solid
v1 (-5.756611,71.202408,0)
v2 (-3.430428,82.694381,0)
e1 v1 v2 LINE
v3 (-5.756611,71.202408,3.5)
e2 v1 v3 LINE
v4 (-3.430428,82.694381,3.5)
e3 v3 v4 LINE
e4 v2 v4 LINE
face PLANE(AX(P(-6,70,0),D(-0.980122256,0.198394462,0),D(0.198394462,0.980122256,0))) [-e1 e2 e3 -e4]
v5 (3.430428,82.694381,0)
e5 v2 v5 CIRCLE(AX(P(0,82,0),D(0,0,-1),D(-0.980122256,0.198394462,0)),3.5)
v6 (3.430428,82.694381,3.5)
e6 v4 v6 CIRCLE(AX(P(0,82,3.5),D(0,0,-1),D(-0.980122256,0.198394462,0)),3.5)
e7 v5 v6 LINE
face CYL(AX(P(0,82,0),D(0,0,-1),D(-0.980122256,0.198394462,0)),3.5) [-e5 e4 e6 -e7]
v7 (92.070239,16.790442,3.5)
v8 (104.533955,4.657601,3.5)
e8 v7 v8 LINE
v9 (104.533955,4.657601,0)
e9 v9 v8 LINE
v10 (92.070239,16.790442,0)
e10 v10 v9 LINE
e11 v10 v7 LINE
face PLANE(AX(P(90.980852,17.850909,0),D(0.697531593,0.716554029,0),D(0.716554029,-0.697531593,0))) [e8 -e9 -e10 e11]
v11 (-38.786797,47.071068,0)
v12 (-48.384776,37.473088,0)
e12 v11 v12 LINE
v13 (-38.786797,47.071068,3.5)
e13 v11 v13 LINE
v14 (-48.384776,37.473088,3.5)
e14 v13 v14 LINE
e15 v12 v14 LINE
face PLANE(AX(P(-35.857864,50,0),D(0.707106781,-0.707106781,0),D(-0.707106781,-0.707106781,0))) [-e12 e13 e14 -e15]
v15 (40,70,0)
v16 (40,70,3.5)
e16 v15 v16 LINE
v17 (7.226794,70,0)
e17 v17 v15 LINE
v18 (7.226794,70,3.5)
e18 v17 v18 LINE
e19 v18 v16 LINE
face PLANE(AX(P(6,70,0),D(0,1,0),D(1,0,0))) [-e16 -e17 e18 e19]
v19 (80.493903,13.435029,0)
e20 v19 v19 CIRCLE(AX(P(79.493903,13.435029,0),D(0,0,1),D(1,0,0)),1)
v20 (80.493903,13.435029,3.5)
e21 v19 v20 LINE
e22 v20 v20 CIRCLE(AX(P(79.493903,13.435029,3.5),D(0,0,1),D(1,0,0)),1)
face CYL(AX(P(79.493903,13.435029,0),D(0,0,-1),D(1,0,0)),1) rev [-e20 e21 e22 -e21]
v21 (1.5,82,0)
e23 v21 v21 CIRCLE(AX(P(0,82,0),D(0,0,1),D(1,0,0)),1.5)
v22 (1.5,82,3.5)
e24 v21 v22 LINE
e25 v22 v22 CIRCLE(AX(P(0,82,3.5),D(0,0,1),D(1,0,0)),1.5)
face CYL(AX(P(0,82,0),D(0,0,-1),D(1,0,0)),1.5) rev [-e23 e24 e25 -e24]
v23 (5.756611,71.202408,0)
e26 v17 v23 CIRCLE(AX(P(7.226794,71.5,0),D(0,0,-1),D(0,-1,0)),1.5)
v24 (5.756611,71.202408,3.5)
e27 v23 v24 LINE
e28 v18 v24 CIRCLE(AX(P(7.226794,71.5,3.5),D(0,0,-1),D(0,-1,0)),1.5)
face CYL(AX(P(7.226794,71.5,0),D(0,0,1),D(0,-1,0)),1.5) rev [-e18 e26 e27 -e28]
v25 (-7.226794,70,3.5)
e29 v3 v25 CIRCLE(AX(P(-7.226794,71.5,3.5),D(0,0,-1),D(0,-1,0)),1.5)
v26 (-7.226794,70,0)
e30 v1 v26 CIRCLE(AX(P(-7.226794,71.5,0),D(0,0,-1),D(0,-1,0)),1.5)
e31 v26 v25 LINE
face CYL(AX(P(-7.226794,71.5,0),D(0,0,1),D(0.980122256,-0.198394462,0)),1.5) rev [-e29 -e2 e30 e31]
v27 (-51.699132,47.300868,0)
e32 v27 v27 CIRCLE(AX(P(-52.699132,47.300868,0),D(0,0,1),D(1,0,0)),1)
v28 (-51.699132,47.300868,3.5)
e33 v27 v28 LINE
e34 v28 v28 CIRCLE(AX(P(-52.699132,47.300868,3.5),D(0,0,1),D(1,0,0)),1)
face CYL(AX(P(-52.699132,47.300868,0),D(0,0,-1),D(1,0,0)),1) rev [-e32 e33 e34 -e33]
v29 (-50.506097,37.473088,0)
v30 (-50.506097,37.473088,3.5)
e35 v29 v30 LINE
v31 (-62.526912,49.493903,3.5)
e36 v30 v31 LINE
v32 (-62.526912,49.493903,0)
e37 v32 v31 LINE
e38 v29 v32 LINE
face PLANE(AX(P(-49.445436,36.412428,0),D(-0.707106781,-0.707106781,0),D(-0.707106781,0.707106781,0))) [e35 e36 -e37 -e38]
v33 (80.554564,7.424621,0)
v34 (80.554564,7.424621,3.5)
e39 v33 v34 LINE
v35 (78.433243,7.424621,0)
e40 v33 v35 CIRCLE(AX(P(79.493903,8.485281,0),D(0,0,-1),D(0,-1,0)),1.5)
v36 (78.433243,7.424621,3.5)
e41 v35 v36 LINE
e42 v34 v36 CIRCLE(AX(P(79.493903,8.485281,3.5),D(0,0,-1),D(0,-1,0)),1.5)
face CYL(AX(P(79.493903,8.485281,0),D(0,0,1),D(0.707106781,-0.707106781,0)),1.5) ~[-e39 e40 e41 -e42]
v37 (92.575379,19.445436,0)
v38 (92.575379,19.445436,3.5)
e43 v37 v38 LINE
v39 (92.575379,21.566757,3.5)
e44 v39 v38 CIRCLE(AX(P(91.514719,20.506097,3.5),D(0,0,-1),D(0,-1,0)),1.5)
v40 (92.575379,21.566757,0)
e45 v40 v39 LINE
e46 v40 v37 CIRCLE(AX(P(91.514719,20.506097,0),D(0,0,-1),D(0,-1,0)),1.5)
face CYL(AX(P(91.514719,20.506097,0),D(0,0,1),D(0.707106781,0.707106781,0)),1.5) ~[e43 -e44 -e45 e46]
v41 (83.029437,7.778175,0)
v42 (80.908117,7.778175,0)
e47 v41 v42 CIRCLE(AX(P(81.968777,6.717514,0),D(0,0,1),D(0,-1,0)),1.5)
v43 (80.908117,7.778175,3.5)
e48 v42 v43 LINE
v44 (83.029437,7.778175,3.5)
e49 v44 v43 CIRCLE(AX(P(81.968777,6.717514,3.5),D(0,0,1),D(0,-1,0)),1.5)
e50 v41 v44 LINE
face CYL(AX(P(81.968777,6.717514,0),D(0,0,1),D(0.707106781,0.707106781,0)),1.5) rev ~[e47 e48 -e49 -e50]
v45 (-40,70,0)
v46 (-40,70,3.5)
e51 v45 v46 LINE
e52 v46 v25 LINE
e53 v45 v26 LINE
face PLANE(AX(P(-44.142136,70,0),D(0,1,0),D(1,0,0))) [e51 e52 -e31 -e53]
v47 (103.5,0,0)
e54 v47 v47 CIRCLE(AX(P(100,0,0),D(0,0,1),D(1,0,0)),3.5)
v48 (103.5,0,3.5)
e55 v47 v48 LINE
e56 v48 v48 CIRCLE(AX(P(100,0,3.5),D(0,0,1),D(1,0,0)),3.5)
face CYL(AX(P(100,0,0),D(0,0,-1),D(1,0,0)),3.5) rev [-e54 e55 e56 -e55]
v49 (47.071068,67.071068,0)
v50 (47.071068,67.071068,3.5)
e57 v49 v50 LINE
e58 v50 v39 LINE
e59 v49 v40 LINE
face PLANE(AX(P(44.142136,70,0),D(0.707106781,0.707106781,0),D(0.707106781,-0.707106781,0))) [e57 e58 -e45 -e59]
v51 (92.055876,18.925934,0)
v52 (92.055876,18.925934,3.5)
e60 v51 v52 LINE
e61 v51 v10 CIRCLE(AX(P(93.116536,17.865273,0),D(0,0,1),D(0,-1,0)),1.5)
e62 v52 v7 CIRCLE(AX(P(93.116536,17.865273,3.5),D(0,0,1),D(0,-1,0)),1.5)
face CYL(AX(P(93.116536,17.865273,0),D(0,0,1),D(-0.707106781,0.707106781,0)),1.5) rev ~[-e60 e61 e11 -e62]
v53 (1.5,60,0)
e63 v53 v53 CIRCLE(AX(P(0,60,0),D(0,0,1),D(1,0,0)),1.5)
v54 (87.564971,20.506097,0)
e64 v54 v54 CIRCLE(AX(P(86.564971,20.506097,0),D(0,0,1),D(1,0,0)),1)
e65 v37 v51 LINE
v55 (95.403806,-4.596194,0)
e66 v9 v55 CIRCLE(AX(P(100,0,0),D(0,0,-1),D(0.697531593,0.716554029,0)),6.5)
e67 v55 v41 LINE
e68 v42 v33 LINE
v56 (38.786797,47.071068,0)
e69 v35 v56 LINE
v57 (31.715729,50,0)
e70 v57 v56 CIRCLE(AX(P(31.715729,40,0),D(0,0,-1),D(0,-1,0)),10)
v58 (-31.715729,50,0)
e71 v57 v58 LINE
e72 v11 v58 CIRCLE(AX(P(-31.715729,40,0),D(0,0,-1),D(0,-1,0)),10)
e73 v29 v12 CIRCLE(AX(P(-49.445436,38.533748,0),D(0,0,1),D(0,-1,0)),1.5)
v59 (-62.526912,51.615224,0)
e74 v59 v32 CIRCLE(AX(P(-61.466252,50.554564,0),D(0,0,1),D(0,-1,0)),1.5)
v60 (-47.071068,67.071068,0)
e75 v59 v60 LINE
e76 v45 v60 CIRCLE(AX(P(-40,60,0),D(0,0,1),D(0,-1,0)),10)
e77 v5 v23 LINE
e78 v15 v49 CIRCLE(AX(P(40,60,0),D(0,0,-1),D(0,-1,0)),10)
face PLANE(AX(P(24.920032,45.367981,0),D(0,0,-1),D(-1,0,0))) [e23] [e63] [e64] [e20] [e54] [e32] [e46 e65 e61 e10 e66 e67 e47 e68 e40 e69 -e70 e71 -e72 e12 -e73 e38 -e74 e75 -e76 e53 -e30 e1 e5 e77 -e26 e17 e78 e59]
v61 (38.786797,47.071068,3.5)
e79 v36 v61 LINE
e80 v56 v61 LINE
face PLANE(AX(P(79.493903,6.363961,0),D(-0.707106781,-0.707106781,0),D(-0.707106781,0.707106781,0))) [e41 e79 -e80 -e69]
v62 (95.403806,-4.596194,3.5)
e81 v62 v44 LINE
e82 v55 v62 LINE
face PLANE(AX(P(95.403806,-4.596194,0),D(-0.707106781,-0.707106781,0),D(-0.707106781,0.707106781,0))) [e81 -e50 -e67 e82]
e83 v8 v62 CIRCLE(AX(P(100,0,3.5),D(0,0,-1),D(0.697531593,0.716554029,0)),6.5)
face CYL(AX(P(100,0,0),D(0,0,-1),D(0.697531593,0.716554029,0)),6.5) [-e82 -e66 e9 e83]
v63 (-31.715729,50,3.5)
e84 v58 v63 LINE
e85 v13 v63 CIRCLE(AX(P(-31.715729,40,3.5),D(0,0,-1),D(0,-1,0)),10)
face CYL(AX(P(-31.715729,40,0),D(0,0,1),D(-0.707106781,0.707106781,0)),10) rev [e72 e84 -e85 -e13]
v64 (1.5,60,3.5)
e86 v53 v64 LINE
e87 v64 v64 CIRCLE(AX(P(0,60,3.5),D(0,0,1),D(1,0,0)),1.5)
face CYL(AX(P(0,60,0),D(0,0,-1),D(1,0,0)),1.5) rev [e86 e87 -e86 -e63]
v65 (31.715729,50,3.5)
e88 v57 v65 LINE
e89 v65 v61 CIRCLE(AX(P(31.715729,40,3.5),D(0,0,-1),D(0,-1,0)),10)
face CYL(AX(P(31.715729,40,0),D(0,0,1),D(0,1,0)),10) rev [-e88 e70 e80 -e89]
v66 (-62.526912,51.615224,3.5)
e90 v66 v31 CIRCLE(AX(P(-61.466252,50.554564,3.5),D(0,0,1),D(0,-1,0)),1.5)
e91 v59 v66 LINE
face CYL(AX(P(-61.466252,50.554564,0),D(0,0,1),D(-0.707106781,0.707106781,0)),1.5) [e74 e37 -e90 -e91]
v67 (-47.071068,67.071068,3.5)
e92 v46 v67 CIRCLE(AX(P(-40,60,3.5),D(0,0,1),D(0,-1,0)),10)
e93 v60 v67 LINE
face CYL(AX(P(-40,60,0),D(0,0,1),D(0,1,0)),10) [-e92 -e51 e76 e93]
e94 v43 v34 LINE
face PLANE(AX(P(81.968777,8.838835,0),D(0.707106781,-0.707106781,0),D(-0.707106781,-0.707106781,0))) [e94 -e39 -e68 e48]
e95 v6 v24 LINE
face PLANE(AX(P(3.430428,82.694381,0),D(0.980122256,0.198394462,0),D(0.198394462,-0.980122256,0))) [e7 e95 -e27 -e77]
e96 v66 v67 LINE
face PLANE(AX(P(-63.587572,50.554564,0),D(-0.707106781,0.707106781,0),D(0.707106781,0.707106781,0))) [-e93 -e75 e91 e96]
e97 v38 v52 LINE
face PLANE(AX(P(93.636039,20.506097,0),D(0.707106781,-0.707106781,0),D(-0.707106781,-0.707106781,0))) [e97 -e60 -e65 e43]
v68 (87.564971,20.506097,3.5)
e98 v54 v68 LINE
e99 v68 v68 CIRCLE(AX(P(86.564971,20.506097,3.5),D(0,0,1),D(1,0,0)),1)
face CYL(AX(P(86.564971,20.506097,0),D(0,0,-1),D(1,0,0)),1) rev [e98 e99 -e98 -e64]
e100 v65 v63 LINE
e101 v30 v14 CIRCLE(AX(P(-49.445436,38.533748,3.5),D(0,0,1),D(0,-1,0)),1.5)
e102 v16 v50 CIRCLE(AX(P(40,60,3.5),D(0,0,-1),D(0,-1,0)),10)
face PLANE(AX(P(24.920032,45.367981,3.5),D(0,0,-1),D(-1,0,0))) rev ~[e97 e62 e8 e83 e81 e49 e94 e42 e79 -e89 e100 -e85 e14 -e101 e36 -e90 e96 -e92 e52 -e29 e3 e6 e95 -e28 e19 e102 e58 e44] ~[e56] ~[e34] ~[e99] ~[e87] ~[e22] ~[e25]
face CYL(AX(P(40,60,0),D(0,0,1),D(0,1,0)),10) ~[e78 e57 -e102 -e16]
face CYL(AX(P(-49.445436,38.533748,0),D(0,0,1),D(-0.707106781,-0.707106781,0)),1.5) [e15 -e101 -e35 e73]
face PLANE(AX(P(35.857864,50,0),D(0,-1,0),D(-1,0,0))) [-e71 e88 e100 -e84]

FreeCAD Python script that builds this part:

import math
import FreeCAD as App
import Part
import Sketcher
from FreeCAD import Vector
Q = App.Units.Quantity


def edges_at(feature, points):
    """Names of the edges that pass closest to the given points."""
    edges = feature.Shape.Edges
    near = lambda p: min(range(len(edges)), key=lambda i: edges[i].distToShape(Part.Vertex(*p))[0])
    return sorted({f"Edge{near(p) + 1}" for p in points})

doc = App.newDocument("Part")
body = doc.addObject("PartDesign::Body", "Body")

# Sketch on XY plane
sketch1 = doc.addObject("Sketcher::SketchObject", "Sketch")
body.addObject(sketch1)
sketch1.AttachmentSupport = (doc.XY_Plane, [""])
sketch1.MapMode = "FlatFace"
sketch1.addGeometry(Part.LineSegment(Vector(6, 70, 0), Vector(3.4, 82.7, 0)), False)
sketch1.addGeometry(Part.ArcOfCircle(Part.Circle(Vector(0, 82, 0), Vector(0, 0, 1), 3.5), math.radians(11), math.radians(169)), False)
sketch1.addGeometry(Part.LineSegment(Vector(-3.4, 82.7, 0), Vector(-6, 70, 0)), False)
sketch1.addGeometry(Part.LineSegment(Vector(-6, 70, 0), Vector(-44.1, 70, 0)), False)
sketch1.addGeometry(Part.LineSegment(Vector(-44.1, 70, 0), Vector(-63.6, 50.6, 0)), False)
sketch1.addGeometry(Part.LineSegment(Vector(-63.6, 50.6, 0), Vector(-49.4, 36.4, 0)), False)
sketch1.addGeometry(Part.LineSegment(Vector(-49.4, 36.4, 0), Vector(-35.9, 50, 0)), False)
sketch1.addGeometry(Part.LineSegment(Vector(-35.9, 50, 0), Vector(35.9, 50, 0)), False)
sketch1.addGeometry(Part.LineSegment(Vector(35.9, 50, 0), Vector(79.5, 6.4, 0)), False)
sketch1.addGeometry(Part.LineSegment(Vector(79.5, 6.4, 0), Vector(82, 8.8, 0)), False)
sketch1.addGeometry(Part.LineSegment(Vector(82, 8.8, 0), Vector(95.4, -4.6, 0)), False)
sketch1.addGeometry(Part.ArcOfCircle(Part.Circle(Vector(100, 0, 0), Vector(0, 0, 1), 6.5), math.radians(-135), math.radians(46)), False)
sketch1.addGeometry(Part.LineSegment(Vector(104.5, 4.7, 0), Vector(91, 17.9, 0)), False)
sketch1.addGeometry(Part.LineSegment(Vector(91, 17.9, 0), Vector(93.6, 20.5, 0)), False)
sketch1.addGeometry(Part.LineSegment(Vector(93.6, 20.5, 0), Vector(44.1, 70, 0)), False)
sketch1.addGeometry(Part.LineSegment(Vector(44.1, 70, 0), Vector(6, 70, 0)), False)
sketch1.addGeometry(Part.Circle(Vector(100, 0, 0), Vector(0, 0, 1), 3.5), False)
sketch1.addGeometry(Part.Circle(Vector(79.5, 13.4, 0), Vector(0, 0, 1), 1), False)
sketch1.addGeometry(Part.Circle(Vector(86.6, 20.5, 0), Vector(0, 0, 1), 1), False)
sketch1.addGeometry(Part.Circle(Vector(0, 60, 0), Vector(0, 0, 1), 1.5), False)
sketch1.addGeometry(Part.Circle(Vector(-52.7, 47.3, 0), Vector(0, 0, 1), 1), False)
sketch1.addGeometry(Part.Circle(Vector(0, 82, 0), Vector(0, 0, 1), 1.5), False)
sketch1.addConstraint(Sketcher.Constraint("Tangent", 0, 2, 1, 1))
sketch1.addConstraint(Sketcher.Constraint("Tangent", 1, 2, 2, 1))
sketch1.addConstraint(Sketcher.Constraint("Coincident", 2, 2, 3, 1))
sketch1.addConstraint(Sketcher.Constraint("Coincident", 3, 2, 4, 1))
sketch1.addConstraint(Sketcher.Constraint("Coincident", 4, 2, 5, 1))
sketch1.addConstraint(Sketcher.Constraint("Coincident", 5, 2, 6, 1))
sketch1.addConstraint(Sketcher.Constraint("Coincident", 6, 2, 7, 1))
sketch1.addConstraint(Sketcher.Constraint("Coincident", 7, 2, 8, 1))
sketch1.addConstraint(Sketcher.Constraint("Coincident", 8, 2, 9, 1))
sketch1.addConstraint(Sketcher.Constraint("Coincident", 9, 2, 10, 1))
sketch1.addConstraint(Sketcher.Constraint("Tangent", 10, 2, 11, 1))
sketch1.addConstraint(Sketcher.Constraint("Tangent", 11, 2, 12, 1))
sketch1.addConstraint(Sketcher.Constraint("Coincident", 12, 2, 13, 1))
sketch1.addConstraint(Sketcher.Constraint("Coincident", 13, 2, 14, 1))
sketch1.addConstraint(Sketcher.Constraint("Coincident", 14, 2, 15, 1))
sketch1.addConstraint(Sketcher.Constraint("Coincident", 15, 2, 0, 1))
sketch1.addConstraint(Sketcher.Constraint("Horizontal", 3))
sketch1.addConstraint(Sketcher.Constraint("Horizontal", 7))
sketch1.addConstraint(Sketcher.Constraint("Horizontal", 15))
sketch1.addConstraint(Sketcher.Constraint("Coincident", 16, 3, 11, 3))
sketch1.addConstraint(Sketcher.Constraint("Coincident", 21, 3, 1, 3))
sketch1.addConstraint(Sketcher.Constraint("Equal", 1, 16))
sketch1.addConstraint(Sketcher.Constraint("Equal", 17, 18))
sketch1.addConstraint(Sketcher.Constraint("Equal", 18, 20))
sketch1.addConstraint(Sketcher.Constraint("Equal", 19, 21))
sketch1.addConstraint(Sketcher.Constraint("Symmetric", 0, 2, 1, 2, -2))
sketch1.addConstraint(Sketcher.Constraint("Symmetric", 3, 2, 14, 2, -2))
sketch1.addConstraint(Sketcher.Constraint("PointOnObject", 11, 3, -1))
sketch1.addConstraint(Sketcher.Constraint("PointOnObject", 19, 3, -2))
sketch1.addConstraint(Sketcher.Constraint("Perpendicular", 4, 5))
sketch1.addConstraint(Sketcher.Constraint("Perpendicular", 5, 6))
sketch1.addConstraint(Sketcher.Constraint("Perpendicular", 6, 8))
sketch1.addConstraint(Sketcher.Constraint("Perpendicular", 8, 9))
sketch1.addConstraint(Sketcher.Constraint("Perpendicular", 9, 10))
sketch1.addConstraint(Sketcher.Constraint("Perpendicular", 10, 13))
sketch1.addConstraint(Sketcher.Constraint("Perpendicular", 13, 14))
sketch1.addConstraint(Sketcher.Constraint("Horizontal", 18, 3, 13, 2))
sketch1.addConstraint(Sketcher.Constraint("Vertical", 17, 3, 8, 2))
sketch1.addConstraint(Sketcher.Constraint("Diameter", 16, Q("7 mm")))
sketch1.addConstraint(Sketcher.Constraint("Diameter", 17, Q("2 mm")))
sketch1.addConstraint(Sketcher.Constraint("Diameter", 19, Q("3 mm")))
sketch1.addConstraint(Sketcher.Constraint("Radius", 11, Q("6.5 mm")))
sketch1.addConstraint(Sketcher.Constraint("Angle", 4, Q("-135 deg")))
sketch1.addConstraint(Sketcher.Constraint("Distance", 5, Q("20 mm")))
sketch1.addConstraint(Sketcher.Constraint("Distance", 10, Q("19 mm")))
sketch1.addConstraint(Sketcher.Constraint("DistanceY", -1, 1, 1, 3, Q("82 mm")))
sketch1.addConstraint(Sketcher.Constraint("DistanceX", -1, 1, 11, 3, Q("100 mm")))
sketch1.addConstraint(Sketcher.Constraint("DistanceY", -1, 1, 19, 3, Q("60 mm")))
sketch1.addConstraint(Sketcher.Constraint("DistanceX", 2, 2, -1, 1, Q("6 mm")))
sketch1.addConstraint(Sketcher.Constraint("DistanceY", -1, 1, 2, 2, Q("70 mm")))
sketch1.addConstraint(Sketcher.Constraint("DistanceY", -1, 1, 6, 2, Q("50 mm")))
sketch1.addConstraint(Sketcher.Constraint("Distance", 4, Q("27.5 mm")))
sketch1.addConstraint(Sketcher.Constraint("Distance", 9, Q("3.5 mm")))
sketch1.addConstraint(Sketcher.Constraint("DistanceX", 7, 1, 7, 2, Q("71.715729 mm")))
sketch1.addConstraint(Sketcher.Constraint("DistanceY", -1, 1, 11, 2, Q("4.657601 mm")))
sketch1.addConstraint(Sketcher.Constraint("Distance", 12, Q("18.91428 mm")))
sketch1.addConstraint(Sketcher.Constraint("DistanceY", -1, 1, 17, 3, Q("13.435029 mm")))
sketch1.addConstraint(Sketcher.Constraint("DistanceX", -1, 1, 18, 3, Q("86.564971 mm")))
sketch1.addConstraint(Sketcher.Constraint("DistanceY", 17, 3, 20, 3, Q("33.865839 mm")))
sketch1.addConstraint(Sketcher.Constraint("DistanceX", 20, 3, 0, 2, Q("56.12956 mm")))
pad1 = doc.addObject("PartDesign::Pad", "Pad")
body.addObject(pad1)
pad1.Profile = sketch1
pad1.Length = 3.5
doc.recompute()

fillet = doc.addObject("PartDesign::Fillet", "Fillet")
body.addObject(fillet)
fillet.Base = (pad1, edges_at(pad1, [
    (44.142, 70, 1.75),
    (35.858, 50, 1.75),
    (-35.858, 50, 1.75),
    (-44.142, 70, 1.75),
]))
fillet.Radius = 10
doc.recompute()

fillet2 = doc.addObject("PartDesign::Fillet", "Fillet001")
body.addObject(fillet2)
fillet2.Base = (fillet, edges_at(fillet, [
    (6, 70, 1.75),
    (93.636, 20.506, 1.75),
    (90.981, 17.851, 1.75),
    (81.969, 8.839, 1.75),
    (79.494, 6.364, 1.75),
    (-49.445, 36.412, 1.75),
    (-63.588, 50.555, 1.75),
    (-6, 70, 1.75),
]))
fillet2.Radius = 1.5

doc.recompute()
